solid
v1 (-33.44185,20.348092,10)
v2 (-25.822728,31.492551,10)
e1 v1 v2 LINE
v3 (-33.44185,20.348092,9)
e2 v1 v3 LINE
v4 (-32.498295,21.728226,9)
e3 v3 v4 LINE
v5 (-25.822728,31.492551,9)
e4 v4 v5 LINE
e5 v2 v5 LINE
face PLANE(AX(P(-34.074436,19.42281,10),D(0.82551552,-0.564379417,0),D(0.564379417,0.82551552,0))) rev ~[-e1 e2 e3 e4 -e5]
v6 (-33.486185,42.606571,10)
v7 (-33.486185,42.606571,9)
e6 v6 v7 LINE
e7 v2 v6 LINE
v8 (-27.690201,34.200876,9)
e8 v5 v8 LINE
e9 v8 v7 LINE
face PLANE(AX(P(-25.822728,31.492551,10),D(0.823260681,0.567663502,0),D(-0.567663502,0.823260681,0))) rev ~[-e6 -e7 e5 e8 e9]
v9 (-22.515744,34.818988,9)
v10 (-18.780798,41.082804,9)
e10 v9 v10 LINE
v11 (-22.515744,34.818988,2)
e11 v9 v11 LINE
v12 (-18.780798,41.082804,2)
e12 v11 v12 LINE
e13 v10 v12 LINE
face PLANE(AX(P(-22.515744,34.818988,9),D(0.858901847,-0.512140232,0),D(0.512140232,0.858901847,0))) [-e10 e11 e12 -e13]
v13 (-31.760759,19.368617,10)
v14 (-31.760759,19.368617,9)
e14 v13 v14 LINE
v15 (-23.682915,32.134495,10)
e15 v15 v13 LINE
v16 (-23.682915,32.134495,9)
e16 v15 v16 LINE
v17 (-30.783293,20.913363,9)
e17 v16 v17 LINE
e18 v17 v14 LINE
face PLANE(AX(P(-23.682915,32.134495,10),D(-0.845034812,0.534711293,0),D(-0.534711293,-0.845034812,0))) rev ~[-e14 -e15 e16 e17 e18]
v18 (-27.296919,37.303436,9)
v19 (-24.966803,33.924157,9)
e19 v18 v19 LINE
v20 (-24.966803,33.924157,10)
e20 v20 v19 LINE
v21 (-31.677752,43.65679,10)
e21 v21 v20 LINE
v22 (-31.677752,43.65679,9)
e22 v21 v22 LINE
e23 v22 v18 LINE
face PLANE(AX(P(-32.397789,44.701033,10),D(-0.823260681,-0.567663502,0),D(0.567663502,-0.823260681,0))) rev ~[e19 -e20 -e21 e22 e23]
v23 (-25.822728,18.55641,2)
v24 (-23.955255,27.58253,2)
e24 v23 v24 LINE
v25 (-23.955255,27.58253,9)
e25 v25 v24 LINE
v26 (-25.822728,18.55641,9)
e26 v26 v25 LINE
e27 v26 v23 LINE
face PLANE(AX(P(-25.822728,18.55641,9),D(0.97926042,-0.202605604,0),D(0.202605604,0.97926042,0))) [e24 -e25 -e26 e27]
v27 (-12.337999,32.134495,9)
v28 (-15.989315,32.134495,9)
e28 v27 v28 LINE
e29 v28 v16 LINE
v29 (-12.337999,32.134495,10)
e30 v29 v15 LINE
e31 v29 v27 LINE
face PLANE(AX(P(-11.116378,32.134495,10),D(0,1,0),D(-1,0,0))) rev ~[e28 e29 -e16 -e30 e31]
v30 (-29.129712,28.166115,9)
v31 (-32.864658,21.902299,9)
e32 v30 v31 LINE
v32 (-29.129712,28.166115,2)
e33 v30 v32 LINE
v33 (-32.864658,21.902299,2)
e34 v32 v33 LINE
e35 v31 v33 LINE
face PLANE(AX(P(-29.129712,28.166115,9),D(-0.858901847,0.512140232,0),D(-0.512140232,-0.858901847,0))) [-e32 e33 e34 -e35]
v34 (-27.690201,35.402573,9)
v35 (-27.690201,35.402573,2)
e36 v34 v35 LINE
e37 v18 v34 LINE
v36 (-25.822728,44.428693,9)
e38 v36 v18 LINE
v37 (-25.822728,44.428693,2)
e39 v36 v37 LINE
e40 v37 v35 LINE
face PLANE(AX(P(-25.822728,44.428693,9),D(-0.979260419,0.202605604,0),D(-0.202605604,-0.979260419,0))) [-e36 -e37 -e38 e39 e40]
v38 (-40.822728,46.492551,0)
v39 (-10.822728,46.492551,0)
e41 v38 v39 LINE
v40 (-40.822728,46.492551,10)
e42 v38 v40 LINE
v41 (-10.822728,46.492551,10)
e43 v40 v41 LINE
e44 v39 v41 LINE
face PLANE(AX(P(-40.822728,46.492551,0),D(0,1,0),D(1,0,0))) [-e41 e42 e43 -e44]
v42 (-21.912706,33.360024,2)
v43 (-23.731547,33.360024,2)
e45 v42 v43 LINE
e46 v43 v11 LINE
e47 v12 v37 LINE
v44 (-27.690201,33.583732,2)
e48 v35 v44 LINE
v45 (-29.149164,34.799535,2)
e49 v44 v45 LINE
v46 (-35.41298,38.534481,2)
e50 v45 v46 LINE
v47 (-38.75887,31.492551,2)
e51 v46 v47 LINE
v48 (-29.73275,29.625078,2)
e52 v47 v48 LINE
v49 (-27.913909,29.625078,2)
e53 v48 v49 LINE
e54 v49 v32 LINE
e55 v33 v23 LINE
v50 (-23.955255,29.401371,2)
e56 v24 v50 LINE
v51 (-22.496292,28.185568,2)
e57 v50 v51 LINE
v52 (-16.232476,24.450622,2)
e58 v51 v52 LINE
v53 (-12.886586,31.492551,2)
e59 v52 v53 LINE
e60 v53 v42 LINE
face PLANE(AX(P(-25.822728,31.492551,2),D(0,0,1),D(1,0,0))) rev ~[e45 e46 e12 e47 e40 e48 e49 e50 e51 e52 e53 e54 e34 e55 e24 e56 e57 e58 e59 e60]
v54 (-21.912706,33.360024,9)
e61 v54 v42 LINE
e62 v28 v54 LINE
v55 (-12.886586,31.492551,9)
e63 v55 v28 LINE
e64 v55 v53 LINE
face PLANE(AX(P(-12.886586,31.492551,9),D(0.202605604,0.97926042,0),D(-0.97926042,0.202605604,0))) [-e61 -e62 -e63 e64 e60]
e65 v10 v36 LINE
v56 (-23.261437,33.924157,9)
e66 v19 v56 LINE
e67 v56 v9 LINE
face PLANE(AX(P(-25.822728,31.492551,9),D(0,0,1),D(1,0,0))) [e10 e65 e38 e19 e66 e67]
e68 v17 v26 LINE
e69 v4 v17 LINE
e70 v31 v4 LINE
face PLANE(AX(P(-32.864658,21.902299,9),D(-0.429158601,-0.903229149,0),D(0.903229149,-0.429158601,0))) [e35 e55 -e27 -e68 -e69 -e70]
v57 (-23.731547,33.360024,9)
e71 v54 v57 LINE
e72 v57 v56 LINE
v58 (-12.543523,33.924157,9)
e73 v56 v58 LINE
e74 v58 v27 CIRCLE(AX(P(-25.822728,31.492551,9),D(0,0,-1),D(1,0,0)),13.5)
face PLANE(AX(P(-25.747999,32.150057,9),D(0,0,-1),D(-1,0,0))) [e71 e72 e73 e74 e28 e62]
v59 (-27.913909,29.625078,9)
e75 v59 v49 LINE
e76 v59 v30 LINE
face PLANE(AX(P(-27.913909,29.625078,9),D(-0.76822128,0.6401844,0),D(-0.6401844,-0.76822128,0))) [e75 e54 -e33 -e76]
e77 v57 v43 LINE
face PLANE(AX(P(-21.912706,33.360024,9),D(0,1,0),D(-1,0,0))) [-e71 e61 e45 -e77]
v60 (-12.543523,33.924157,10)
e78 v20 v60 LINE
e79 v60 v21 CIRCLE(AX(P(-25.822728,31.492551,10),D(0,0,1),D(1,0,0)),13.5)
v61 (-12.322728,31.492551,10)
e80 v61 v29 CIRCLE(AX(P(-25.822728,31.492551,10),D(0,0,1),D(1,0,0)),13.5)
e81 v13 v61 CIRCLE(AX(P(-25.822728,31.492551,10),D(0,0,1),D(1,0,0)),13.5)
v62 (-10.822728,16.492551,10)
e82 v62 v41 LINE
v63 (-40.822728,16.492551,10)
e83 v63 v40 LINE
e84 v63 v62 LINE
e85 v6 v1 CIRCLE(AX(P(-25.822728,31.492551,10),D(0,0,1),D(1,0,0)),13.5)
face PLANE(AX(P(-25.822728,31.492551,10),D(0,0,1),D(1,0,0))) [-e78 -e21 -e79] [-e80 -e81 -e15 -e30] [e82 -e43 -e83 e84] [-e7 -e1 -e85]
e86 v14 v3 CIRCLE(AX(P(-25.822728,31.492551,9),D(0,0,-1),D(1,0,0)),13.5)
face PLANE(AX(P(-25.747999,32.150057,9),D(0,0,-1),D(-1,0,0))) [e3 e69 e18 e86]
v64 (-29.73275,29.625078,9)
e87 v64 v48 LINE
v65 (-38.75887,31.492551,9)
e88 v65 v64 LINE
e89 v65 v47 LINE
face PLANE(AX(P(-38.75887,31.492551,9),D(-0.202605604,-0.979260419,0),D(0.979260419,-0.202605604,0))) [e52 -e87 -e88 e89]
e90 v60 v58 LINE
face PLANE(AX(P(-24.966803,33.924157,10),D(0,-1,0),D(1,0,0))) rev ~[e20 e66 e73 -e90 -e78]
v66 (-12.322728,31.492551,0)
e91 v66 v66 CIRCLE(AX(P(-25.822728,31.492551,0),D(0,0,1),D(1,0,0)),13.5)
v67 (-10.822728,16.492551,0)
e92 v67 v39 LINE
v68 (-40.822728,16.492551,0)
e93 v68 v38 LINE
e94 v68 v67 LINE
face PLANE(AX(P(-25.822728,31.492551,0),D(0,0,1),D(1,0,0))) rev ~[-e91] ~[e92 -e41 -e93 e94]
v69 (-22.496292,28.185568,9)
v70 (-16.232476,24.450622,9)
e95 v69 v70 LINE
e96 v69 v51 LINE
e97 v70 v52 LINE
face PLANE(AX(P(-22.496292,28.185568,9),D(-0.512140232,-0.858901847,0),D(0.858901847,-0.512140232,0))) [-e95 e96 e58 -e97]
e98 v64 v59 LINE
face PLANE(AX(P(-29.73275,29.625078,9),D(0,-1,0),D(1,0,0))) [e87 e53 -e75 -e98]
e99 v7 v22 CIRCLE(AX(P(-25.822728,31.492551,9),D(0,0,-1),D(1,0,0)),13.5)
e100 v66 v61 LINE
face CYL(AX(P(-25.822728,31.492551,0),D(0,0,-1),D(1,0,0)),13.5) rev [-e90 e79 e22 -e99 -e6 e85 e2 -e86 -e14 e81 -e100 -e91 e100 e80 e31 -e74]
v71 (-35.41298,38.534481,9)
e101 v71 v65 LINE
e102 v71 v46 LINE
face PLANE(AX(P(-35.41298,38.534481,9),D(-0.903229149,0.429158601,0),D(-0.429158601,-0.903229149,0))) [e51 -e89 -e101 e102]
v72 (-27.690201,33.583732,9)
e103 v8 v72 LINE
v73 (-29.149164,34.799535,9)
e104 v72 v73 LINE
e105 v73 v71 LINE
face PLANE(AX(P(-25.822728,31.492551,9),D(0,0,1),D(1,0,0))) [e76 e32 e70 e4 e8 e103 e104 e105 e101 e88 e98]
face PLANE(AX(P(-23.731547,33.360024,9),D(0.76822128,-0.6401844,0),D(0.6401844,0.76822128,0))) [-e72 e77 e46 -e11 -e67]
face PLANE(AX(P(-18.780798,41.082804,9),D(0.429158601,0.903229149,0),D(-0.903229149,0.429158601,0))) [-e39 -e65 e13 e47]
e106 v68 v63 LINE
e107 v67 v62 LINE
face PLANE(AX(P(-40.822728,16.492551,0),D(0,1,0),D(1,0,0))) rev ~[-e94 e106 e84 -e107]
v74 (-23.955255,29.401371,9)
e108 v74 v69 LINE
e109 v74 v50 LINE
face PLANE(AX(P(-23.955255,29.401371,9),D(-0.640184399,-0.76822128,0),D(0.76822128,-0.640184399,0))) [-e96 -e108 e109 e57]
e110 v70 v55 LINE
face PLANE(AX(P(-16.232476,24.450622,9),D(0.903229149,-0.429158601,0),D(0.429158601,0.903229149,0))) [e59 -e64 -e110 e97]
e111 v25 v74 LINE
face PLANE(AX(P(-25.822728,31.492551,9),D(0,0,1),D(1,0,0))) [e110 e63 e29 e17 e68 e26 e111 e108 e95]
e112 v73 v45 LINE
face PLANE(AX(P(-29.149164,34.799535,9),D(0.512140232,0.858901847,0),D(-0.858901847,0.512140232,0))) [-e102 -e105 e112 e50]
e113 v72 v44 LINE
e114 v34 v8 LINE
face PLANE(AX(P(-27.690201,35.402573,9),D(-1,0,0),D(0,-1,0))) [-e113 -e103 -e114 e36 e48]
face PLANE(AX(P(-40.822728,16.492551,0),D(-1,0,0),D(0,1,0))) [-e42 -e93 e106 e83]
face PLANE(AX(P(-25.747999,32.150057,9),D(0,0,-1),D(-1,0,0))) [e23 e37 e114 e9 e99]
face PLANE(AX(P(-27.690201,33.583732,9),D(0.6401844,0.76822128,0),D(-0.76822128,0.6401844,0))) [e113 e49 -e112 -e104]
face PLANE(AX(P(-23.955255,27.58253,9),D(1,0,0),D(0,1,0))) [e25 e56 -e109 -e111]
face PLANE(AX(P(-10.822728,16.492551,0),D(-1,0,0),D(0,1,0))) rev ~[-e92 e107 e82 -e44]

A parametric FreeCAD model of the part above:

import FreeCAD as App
import Part
import Sketcher

V = App.Vector
Q = App.Units.Quantity


def add_polygon(sketch, points):
    """Adds a closed chain of lines whose ends are joined by coincident constraints."""
    first, n = sketch.GeometryCount, len(points)
    for a, b in zip(points, points[1:] + points[:1]):
        sketch.addGeometry(Part.LineSegment(App.Vector(*a, 0), App.Vector(*b, 0)), False)
    for i in range(n):
        sketch.addConstraint(Sketcher.Constraint("Coincident", first + i, 2, first + (i + 1) % n, 1))

doc = App.newDocument("Part")
body = doc.addObject("PartDesign::Body", "Body")

# Sketch on XY plane
sketch1 = body.newObject("Sketcher::SketchObject", "Sketch")
sketch1.AttachmentSupport = (doc.getObject("XY_Plane"), [""])
sketch1.MapMode = "FlatFace"
add_polygon(sketch1, [(-41, 46), (-41, 16), (-11, 16), (-11, 46)])  # lines 0-3
sketch1.addGeometry(Part.Circle(V(-26, 31, 0), V(0, 0, 1), 14), False)  # 4
sketch1.addConstraint([
    Sketcher.Constraint("Vertical", 0),
    Sketcher.Constraint("Horizontal", 1),
    Sketcher.Constraint("Vertical", 2),
    Sketcher.Constraint("Horizontal", 3),
    Sketcher.Constraint("Equal", 3, 0),
    Sketcher.Constraint("Diameter", 4, Q("27 mm")),
    Sketcher.Constraint("DistanceX", 1, 1, 1, 2, Q("30 mm")),
    Sketcher.Constraint("DistanceX", 0, 2, 4, 3, Q("15 mm")),
    Sketcher.Constraint("DistanceY", 0, 2, 4, 3, Q("15 mm")),
    Sketcher.Constraint("DistanceY", -1, 1, 4, 3, Q("31.492551 mm")),
    Sketcher.Constraint("DistanceX", 4, 3, -1, 1, Q("25.822728 mm")),
])
pad1 = body.newObject("PartDesign::Pad", "Pad")
pad1.Profile = sketch1
pad1.Length = 10

# Sketch on XY plane
sketch2 = body.newObject("Sketcher::SketchObject", "Sketch001")
sketch2.AttachmentSupport = (doc.getObject("XY_Plane"), [""])
sketch2.MapMode = "FlatFace"
sketch2.AttachmentOffset = App.Placement(V(0, 0, 10), App.Rotation())
add_polygon(sketch2, [(-24.97, 33.92), (-32.4, 44.7), (-32.55, 45.15), (-34.37, 43.89), (-25.82, 31.49), (-34.07, 19.42), (-32.4, 18.36), (-23.68, 32.13), (-11.12, 32.13), (-11.12, 33.92)])  # lines 0-9
sketch2.addConstraint([
    Sketcher.Constraint("Horizontal", 7),
    Sketcher.Constraint("Vertical", 8),
    Sketcher.Constraint("Horizontal", 9),
    Sketcher.Constraint("Perpendicular", 0, 2),
    Sketcher.Constraint("Perpendicular", 2, 3),
    Sketcher.Constraint("Perpendicular", 5, 6),
    Sketcher.Constraint("Vertical", 0, 2, 5, 2),
    Sketcher.Constraint("DistanceY", 8, 1, 8, 2, Q("1.789662 mm")),
    Sketcher.Constraint("DistanceY", -1, 1, 1, 2, Q("45.1497 mm")),
    Sketcher.Constraint("DistanceX", 2, 2, 0, 2, Q("1.975299 mm")),
    Sketcher.Constraint("Distance", 0, Q("13.090478 mm")),
    Sketcher.Constraint("Distance", 1, Q("0.473871 mm")),
    Sketcher.Constraint("Distance", 6, Q("16.29828 mm")),
    Sketcher.Constraint("DistanceX", 7, 1, 7, 2, Q("12.566538 mm")),
    Sketcher.Constraint("DistanceX", 9, 2, 9, 1, Q("13.850425 mm")),
    Sketcher.Constraint("DistanceX", 0, 2, -1, 1, Q("32.397789 mm")),
    Sketcher.Constraint("DistanceY", -1, 1, 3, 2, Q("31.492551 mm")),
    Sketcher.Constraint("DistanceY", -1, 1, 4, 2, Q("19.42281 mm")),
    Sketcher.Constraint("DistanceY", -1, 1, 5, 2, Q("18.361881 mm")),
    Sketcher.Constraint("DistanceY", 2, 2, 0, 2, Q("0.80822 mm")),
])
pad2 = body.newObject("PartDesign::Pad", "Pad001")
pad2.Profile = sketch2
pad2.Length = 1
pad2.Reversed = True

# Sketch on XY plane
sketch3 = body.newObject("Sketcher::SketchObject", "Sketch002")
sketch3.AttachmentSupport = (doc.getObject("XY_Plane"), [""])
sketch3.MapMode = "FlatFace"
sketch3.AttachmentOffset = App.Placement(V(0, 0, 9), App.Rotation())
add_polygon(sketch3, [(-18.8, 41.1), (-22.5, 34.8), (-23.7, 33.4), (-21.9, 33.4), (-12.9, 31.5), (-16.2, 24.5), (-22.5, 28.2), (-24, 29.4), (-24, 27.6), (-25.8, 18.6), (-32.9, 21.9), (-29.1, 28.2), (-27.9, 29.6), (-29.7, 29.6), (-38.8, 31.5), (-35.4, 38.5), (-29.1, 34.8), (-27.7, 33.6), (-27.7, 35.4), (-25.8, 44.4)])  # lines 0-19
sketch3.addConstraint([
    Sketcher.Constraint("Horizontal", 2),
    Sketcher.Constraint("Vertical", 7),
    Sketcher.Constraint("Horizontal", 12),
    Sketcher.Constraint("Vertical", 17),
    Sketcher.Constraint("Perpendicular", 0, 5),
    Sketcher.Constraint("Perpendicular", 1, 6),
    Sketcher.Constraint("Perpendicular", 3, 8),
    Sketcher.Constraint("Perpendicular", 4, 9),
    Sketcher.Constraint("Perpendicular", 5, 10),
    Sketcher.Constraint("Perpendicular", 6, 11),
    Sketcher.Constraint("Perpendicular", 8, 13),
    Sketcher.Constraint("Perpendicular", 9, 14),
    Sketcher.Constraint("Perpendicular", 10, 15),
    Sketcher.Constraint("Perpendicular", 11, 16),
    Sketcher.Constraint("Perpendicular", 13, 18),
    Sketcher.Constraint("Perpendicular", 14, 19),
    Sketcher.Constraint("Horizontal", 3, 2, 13, 2),
    Sketcher.Constraint("Vertical", 8, 2, 18, 2),
    Sketcher.Constraint("Equal", 2, 12),
    Sketcher.Constraint("Equal", 12, 7),
    Sketcher.Constraint("Equal", 7, 17),
    Sketcher.Constraint("Equal", 0, 5),
    Sketcher.Constraint("Equal", 1, 6),
    Sketcher.Constraint("Equal", 3, 8),
    Sketcher.Constraint("Equal", 4, 9),
    Sketcher.Constraint("Equal", 5, 10),
    Sketcher.Constraint("Equal", 6, 11),
    Sketcher.Constraint("Equal", 8, 13),
    Sketcher.Constraint("Equal", 9, 14),
    Sketcher.Constraint("Equal", 10, 15),
    Sketcher.Constraint("DistanceX", 2, 1, 2, 2, Q("1.818841 mm")),
    Sketcher.Constraint("DistanceY", -1, 1, 9, 2, Q("21.902299 mm")),
    Sketcher.Constraint("DistanceX", 16, 2, -1, 1, Q("27.690201 mm")),
    Sketcher.Constraint("DistanceX", 19, 2, -1, 1, Q("18.780798 mm")),
    Sketcher.Constraint("Distance", 0, Q("7.292819 mm")),
    Sketcher.Constraint("DistanceY", -1, 1, 3, 2, Q("31.492551 mm")),
    Sketcher.Constraint("DistanceY", -1, 1, 4, 2, Q("24.450622 mm")),
    Sketcher.Constraint("DistanceX", 5, 2, -1, 1, Q("22.496292 mm")),
    Sketcher.Constraint("DistanceY", -1, 1, 6, 2, Q("29.401371 mm")),
    Sketcher.Constraint("DistanceY", -1, 1, 8, 2, Q("18.55641 mm")),
])
pad3 = body.newObject("PartDesign::Pad", "Pad002")
pad3.Profile = sketch3
pad3.Length = 7
pad3.Reversed = True

doc.recompute()
